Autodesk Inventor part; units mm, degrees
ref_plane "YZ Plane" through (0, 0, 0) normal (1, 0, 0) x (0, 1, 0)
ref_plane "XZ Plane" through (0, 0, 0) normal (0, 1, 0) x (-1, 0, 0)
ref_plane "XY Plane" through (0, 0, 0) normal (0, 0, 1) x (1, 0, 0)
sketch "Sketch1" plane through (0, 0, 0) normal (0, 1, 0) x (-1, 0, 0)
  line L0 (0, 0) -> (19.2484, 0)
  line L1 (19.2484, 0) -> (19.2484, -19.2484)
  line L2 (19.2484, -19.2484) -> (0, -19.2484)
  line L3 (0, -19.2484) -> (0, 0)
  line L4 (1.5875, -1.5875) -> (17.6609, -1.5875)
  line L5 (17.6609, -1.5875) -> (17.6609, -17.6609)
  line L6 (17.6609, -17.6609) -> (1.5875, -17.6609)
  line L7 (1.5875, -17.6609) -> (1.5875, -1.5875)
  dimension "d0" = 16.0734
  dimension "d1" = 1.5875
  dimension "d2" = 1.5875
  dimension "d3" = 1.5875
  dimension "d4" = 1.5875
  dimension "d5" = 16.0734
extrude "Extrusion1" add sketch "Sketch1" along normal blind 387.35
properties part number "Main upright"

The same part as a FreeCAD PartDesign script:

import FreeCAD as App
import Part
import Sketcher
from FreeCAD import Vector
Q = App.Units.Quantity


def add_polygon(sketch, points):
    """Adds a closed chain of lines whose ends are joined by coincident constraints."""
    first, n = sketch.GeometryCount, len(points)
    for a, b in zip(points, points[1:] + points[:1]):
        sketch.addGeometry(Part.LineSegment(App.Vector(*a, 0), App.Vector(*b, 0)), False)
    for i in range(n):
        sketch.addConstraint(Sketcher.Constraint("Coincident", first + i, 2, first + (i + 1) % n, 1))

doc = App.newDocument("Part")
body = doc.addObject("PartDesign::Body", "Body")

sketch1 = body.newObject("Sketcher::SketchObject", "Sketch")
sketch1.AttachmentSupport = (doc.getObject("XZ_Plane"), [""])
sketch1.MapMode = "FlatFace"
add_polygon(sketch1, [(-19, 0), (0, 0), (0, -19), (-19, -19)])
add_polygon(sketch1, [(-2, -18), (-2, -2), (-18, -2), (-18, -18)])
sketch1.addConstraint([
    Sketcher.Constraint("Horizontal", 0),
    Sketcher.Constraint("Vertical", 1),
    Sketcher.Constraint("Horizontal", 2),
    Sketcher.Constraint("Vertical", 3),
    Sketcher.Constraint("Vertical", 4),
    Sketcher.Constraint("Horizontal", 5),
    Sketcher.Constraint("Vertical", 6),
    Sketcher.Constraint("Horizontal", 7),
    Sketcher.Constraint("Coincident", 0, 2, -1, 1),
    Sketcher.Constraint("Equal", 2, 1),
    Sketcher.Constraint("Equal", 7, 4),
    Sketcher.Constraint("DistanceX", 5, 2, 5, 1, Q("0.6328 in")),
    Sketcher.Constraint("DistanceX", 4, 2, -1, 1, Q("0.0625 in")),
    Sketcher.Constraint("DistanceY", 4, 2, -1, 1, Q("0.0625 in")),
    Sketcher.Constraint("DistanceX", 3, 2, 5, 2, Q("0.0625 in")),
])
pad1 = body.newObject("PartDesign::Pad", "Pad")
pad1.Profile = sketch1
pad1.Length = Q("15.25 in")
pad1.Reversed = True

doc.recompute()
